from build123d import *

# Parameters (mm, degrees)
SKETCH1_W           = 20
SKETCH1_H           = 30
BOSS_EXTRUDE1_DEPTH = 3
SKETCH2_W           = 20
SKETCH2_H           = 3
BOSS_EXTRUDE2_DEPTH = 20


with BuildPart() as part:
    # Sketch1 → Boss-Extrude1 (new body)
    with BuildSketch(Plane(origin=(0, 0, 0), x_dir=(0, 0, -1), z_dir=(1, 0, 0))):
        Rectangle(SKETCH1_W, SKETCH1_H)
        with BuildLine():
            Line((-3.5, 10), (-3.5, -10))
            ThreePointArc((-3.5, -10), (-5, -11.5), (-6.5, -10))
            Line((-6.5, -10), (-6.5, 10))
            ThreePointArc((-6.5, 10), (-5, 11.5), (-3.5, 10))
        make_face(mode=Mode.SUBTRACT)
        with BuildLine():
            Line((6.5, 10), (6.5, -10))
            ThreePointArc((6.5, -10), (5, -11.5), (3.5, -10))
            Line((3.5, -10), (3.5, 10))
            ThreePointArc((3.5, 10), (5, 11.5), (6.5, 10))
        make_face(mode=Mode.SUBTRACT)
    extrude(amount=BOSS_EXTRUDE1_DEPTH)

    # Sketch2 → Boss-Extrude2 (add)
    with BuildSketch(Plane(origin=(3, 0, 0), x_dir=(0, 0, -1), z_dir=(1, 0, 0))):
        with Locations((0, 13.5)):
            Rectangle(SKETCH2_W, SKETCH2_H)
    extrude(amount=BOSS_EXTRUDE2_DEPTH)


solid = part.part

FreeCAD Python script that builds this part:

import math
import FreeCAD as App
import Part
import Sketcher
Q = App.Units.Quantity

doc = App.newDocument("Part")
params = doc.addObject("Spreadsheet::Sheet", "Params")
for row, (alias, value) in enumerate([
    ("sketch1_radius", "1.5 mm"),
    ("sketch1_width", "30 mm"),
    ("sketch1_width2", "20 mm"),
    ("pad1_length", "3 mm"),
    ("sketch2_width", "3 mm"),
    ("sketch2_height", "20 mm"),
    ("pad2_length", "20 mm"),
], start=1):
    params.set(f"A{row}", alias)
    params.set(f"B{row}", "=" + value)
    params.setAlias(f"B{row}", alias)

body = doc.addObject("PartDesign::Body", "Body")

# Sketch on YZ plane
sketch1 = body.newObject("Sketcher::SketchObject", "Sketch")
sketch1.AttachmentSupport = (doc.getObject("YZ_Plane"), [""])
sketch1.MapMode = "FlatFace"
sketch1.addGeometry(Part.LineSegment(App.Vector(15, 10, 0), App.Vector(-15, 10, 0)), False)
sketch1.addGeometry(Part.LineSegment(App.Vector(-15, 10, 0), App.Vector(-15, -10, 0)), False)
sketch1.addGeometry(Part.LineSegment(App.Vector(-15, -10, 0), App.Vector(15, -10, 0)), False)
sketch1.addGeometry(Part.LineSegment(App.Vector(15, -10, 0), App.Vector(15, 10, 0)), False)
sketch1.addGeometry(Part.ArcOfCircle(Part.Circle(App.Vector(10, 5, 0), App.Vector(0, 0, 1), 1.5), math.radians(-90), math.radians(90)), False)
sketch1.addGeometry(Part.LineSegment(App.Vector(10, 3.5, 0), App.Vector(-10, 3.5, 0)), False)
sketch1.addGeometry(Part.ArcOfCircle(Part.Circle(App.Vector(-10, 5, 0), App.Vector(0, 0, 1), 1.5), math.radians(90), math.radians(270)), False)
sketch1.addGeometry(Part.LineSegment(App.Vector(-10, 6.5, 0), App.Vector(10, 6.5, 0)), False)
sketch1.addGeometry(Part.ArcOfCircle(Part.Circle(App.Vector(10, -5, 0), App.Vector(0, 0, 1), 1.5), math.radians(-90), math.radians(90)), False)
sketch1.addGeometry(Part.LineSegment(App.Vector(10, -6.5, 0), App.Vector(-10, -6.5, 0)), False)
sketch1.addGeometry(Part.ArcOfCircle(Part.Circle(App.Vector(-10, -5, 0), App.Vector(0, 0, 1), 1.5), math.radians(90), math.radians(270)), False)
sketch1.addGeometry(Part.LineSegment(App.Vector(-10, -3.5, 0), App.Vector(10, -3.5, 0)), False)
sketch1.addConstraint(Sketcher.Constraint("Coincident", 0, 2, 1, 1))
sketch1.addConstraint(Sketcher.Constraint("Coincident", 1, 2, 2, 1))
sketch1.addConstraint(Sketcher.Constraint("Coincident", 2, 2, 3, 1))
sketch1.addConstraint(Sketcher.Constraint("Coincident", 3, 2, 0, 1))
sketch1.addConstraint(Sketcher.Constraint("Tangent", 4, 1, 5, 1))
sketch1.addConstraint(Sketcher.Constraint("Tangent", 5, 2, 6, 2))
sketch1.addConstraint(Sketcher.Constraint("Tangent", 6, 1, 7, 1))
sketch1.addConstraint(Sketcher.Constraint("Tangent", 7, 2, 4, 2))
sketch1.addConstraint(Sketcher.Constraint("Tangent", 8, 1, 9, 1))
sketch1.addConstraint(Sketcher.Constraint("Tangent", 9, 2, 10, 2))
sketch1.addConstraint(Sketcher.Constraint("Tangent", 10, 1, 11, 1))
sketch1.addConstraint(Sketcher.Constraint("Tangent", 11, 2, 8, 2))
sketch1.addConstraint(Sketcher.Constraint("Horizontal", 0))
sketch1.addConstraint(Sketcher.Constraint("Vertical", 1))
sketch1.addConstraint(Sketcher.Constraint("Horizontal", 2))
sketch1.addConstraint(Sketcher.Constraint("Vertical", 3))
sketch1.addConstraint(Sketcher.Constraint("Horizontal", 5))
sketch1.addConstraint(Sketcher.Constraint("Horizontal", 7))
sketch1.addConstraint(Sketcher.Constraint("Horizontal", 9))
sketch1.addConstraint(Sketcher.Constraint("Horizontal", 11))
sketch1.addConstraint(Sketcher.Constraint("Equal", 6, 8))
sketch1.addConstraint(Sketcher.Constraint("Symmetric", 6, 3, 8, 3, -1, 1))
sketch1.addConstraint(Sketcher.Constraint("Symmetric", 0, 2, 2, 2, -1, 1))
sketch1.addConstraint(Sketcher.Constraint("Vertical", 4, 3, 8, 3))
sketch1.addConstraint(Sketcher.Constraint("Vertical", 6, 3, 10, 3))
sketch1.addConstraint(Sketcher.Constraint("Equal", 11, 1))
sketch1.addConstraint(Sketcher.Constraint("Radius", 4, Q("1.5 mm")))
sketch1.addConstraint(Sketcher.Constraint("DistanceX", 0, 2, 0, 1, Q("30 mm")))
sketch1.addConstraint(Sketcher.Constraint("DistanceX", 5, 2, 5, 1, Q("20 mm")))
sketch1.addConstraint(Sketcher.Constraint("DistanceY", -1, 1, 4, 3, Q("5 mm")))
sketch1.setExpression("Constraints[26]", "Params.sketch1_radius")
sketch1.setExpression("Constraints[27]", "Params.sketch1_width")
sketch1.setExpression("Constraints[28]", "Params.sketch1_width2")
pad1 = body.newObject("PartDesign::Pad", "Pad")
pad1.Profile = sketch1
pad1.setExpression("Length", "Params.pad1_length")

# Sketch on YZ plane
sketch2 = body.newObject("Sketcher::SketchObject", "Sketch001")
sketch2.AttachmentSupport = (doc.getObject("YZ_Plane"), [""])
sketch2.MapMode = "FlatFace"
sketch2.AttachmentOffset = App.Placement(App.Vector(0, 0, 3), App.Rotation())
sketch2.addGeometry(Part.LineSegment(App.Vector(15, 10, 0), App.Vector(12, 10, 0)), False)
sketch2.addGeometry(Part.LineSegment(App.Vector(12, 10, 0), App.Vector(12, -10, 0)), False)
sketch2.addGeometry(Part.LineSegment(App.Vector(12, -10, 0), App.Vector(15, -10, 0)), False)
sketch2.addGeometry(Part.LineSegment(App.Vector(15, -10, 0), App.Vector(15, 10, 0)), False)
sketch2.addConstraint(Sketcher.Constraint("Coincident", 0, 2, 1, 1))
sketch2.addConstraint(Sketcher.Constraint("Coincident", 1, 2, 2, 1))
sketch2.addConstraint(Sketcher.Constraint("Coincident", 2, 2, 3, 1))
sketch2.addConstraint(Sketcher.Constraint("Coincident", 3, 2, 0, 1))
sketch2.addConstraint(Sketcher.Constraint("Horizontal", 0))
sketch2.addConstraint(Sketcher.Constraint("Vertical", 1))
sketch2.addConstraint(Sketcher.Constraint("Horizontal", 2))
sketch2.addConstraint(Sketcher.Constraint("Vertical", 3))
sketch2.addConstraint(Sketcher.Constraint("DistanceX", 0, 2, 0, 1, Q("3 mm")))
sketch2.addConstraint(Sketcher.Constraint("DistanceY", 1, 2, 1, 1, Q("20 mm")))
sketch2.addConstraint(Sketcher.Constraint("DistanceX", -1, 1, 0, 2, Q("12 mm")))
sketch2.addConstraint(Sketcher.Constraint("DistanceY", -1, 1, 0, 2, Q("10 mm")))
sketch2.setExpression("Constraints[8]", "Params.sketch2_width")
sketch2.setExpression("Constraints[9]", "Params.sketch2_height")
pad2 = body.newObject("PartDesign::Pad", "Pad001")
pad2.Profile = sketch2
pad2.setExpression("Length", "Params.pad2_length")

doc.recompute()
